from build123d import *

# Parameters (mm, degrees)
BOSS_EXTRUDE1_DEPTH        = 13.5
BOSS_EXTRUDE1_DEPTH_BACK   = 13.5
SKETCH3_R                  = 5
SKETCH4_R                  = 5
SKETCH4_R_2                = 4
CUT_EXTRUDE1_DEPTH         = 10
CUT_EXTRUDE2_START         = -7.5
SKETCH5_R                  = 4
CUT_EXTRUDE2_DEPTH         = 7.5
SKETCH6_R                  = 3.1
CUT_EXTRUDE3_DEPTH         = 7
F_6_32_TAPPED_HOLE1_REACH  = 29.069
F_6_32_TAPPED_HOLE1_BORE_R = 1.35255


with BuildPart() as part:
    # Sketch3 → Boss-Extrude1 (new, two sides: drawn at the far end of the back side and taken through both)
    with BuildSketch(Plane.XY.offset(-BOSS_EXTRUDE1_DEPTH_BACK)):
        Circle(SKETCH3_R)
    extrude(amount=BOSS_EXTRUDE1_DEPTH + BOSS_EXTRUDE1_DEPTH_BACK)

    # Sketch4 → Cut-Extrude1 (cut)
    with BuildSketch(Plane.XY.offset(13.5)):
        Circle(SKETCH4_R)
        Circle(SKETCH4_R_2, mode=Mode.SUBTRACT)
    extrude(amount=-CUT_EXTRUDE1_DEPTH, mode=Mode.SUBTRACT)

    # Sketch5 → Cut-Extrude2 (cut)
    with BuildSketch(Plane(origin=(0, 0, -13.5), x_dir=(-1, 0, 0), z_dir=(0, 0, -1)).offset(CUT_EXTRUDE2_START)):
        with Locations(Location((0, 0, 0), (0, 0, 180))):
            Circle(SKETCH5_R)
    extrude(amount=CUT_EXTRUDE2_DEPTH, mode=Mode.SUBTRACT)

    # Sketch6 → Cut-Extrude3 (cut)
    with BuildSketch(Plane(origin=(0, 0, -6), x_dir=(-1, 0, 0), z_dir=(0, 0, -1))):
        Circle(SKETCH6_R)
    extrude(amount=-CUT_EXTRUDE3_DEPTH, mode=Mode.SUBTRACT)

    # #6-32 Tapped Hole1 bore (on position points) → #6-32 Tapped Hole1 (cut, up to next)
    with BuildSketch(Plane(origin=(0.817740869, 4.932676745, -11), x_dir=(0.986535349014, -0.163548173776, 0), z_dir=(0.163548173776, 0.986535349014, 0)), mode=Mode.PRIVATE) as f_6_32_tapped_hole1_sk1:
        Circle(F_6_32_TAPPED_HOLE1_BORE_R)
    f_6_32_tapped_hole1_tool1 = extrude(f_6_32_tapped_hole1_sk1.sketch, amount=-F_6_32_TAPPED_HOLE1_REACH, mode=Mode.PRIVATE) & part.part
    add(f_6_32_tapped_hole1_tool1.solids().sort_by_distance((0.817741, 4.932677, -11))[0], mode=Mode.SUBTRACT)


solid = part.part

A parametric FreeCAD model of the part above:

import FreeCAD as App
import Part
import Sketcher

V = App.Vector
Q = App.Units.Quantity

doc = App.newDocument("Part")
body = doc.addObject("PartDesign::Body", "Body")

sketch1 = body.newObject("Sketcher::SketchObject", "Sketch")
sketch1.AttachmentSupport = (doc.getObject("XY_Plane"), [""])
sketch1.MapMode = "FlatFace"
sketch1.addGeometry(Part.Circle(V(0, 0, 0), V(0, 0, 1), 5), False)
sketch1.addConstraint([
    Sketcher.Constraint("Coincident", 0, 3, -1, 1),
    Sketcher.Constraint("Diameter", 0, Q("10 mm")),
])
pad1 = body.newObject("PartDesign::Pad", "Pad")
pad1.Profile = sketch1
pad1.Type = "TwoLengths"
pad1.Length = 13.5
pad1.Length2 = 13.5

sketch2 = body.newObject("Sketcher::SketchObject", "Sketch001")
sketch2.AttachmentSupport = (doc.getObject("XY_Plane"), [""])
sketch2.MapMode = "FlatFace"
sketch2.AttachmentOffset = App.Placement(V(0, 0, 13.5), App.Rotation())
sketch2.addGeometry([
    Part.Circle(V(0, 0, 0), V(0, 0, 1), 5),
    Part.Circle(V(0, 0, 0), V(0, 0, 1), 4),
], False)
sketch2.addConstraint([
    Sketcher.Constraint("Coincident", 0, 3, -1, 1),
    Sketcher.Constraint("Coincident", 1, 3, -1, 1),
    Sketcher.Constraint("Diameter", 0, Q("10 mm")),
    Sketcher.Constraint("Diameter", 1, Q("8 mm")),
])
pocket1 = body.newObject("PartDesign::Pocket", "Pocket")
pocket1.Profile = sketch2
pocket1.Length = 10

sketch3 = body.newObject("Sketcher::SketchObject", "Sketch002")
sketch3.AttachmentSupport = (doc.getObject("XY_Plane"), [""])
sketch3.MapMode = "FlatFace"
sketch3.AttachmentOffset = App.Placement(V(0, 0, -6), App.Rotation())
sketch3.addGeometry(Part.Circle(V(0, 0, 0), V(0, 0, 1), 4), False)
sketch3.addConstraint([
    Sketcher.Constraint("Coincident", 0, 3, -1, 1),
    Sketcher.Constraint("Diameter", 0, Q("8 mm")),
])
pocket2 = body.newObject("PartDesign::Pocket", "Pocket001")
pocket2.Profile = sketch3
pocket2.Length = 7.5

sketch4 = body.newObject("Sketcher::SketchObject", "Sketch003")
sketch4.AttachmentSupport = (doc.getObject("XY_Plane"), [""])
sketch4.MapMode = "FlatFace"
sketch4.AttachmentOffset = App.Placement(V(0, 0, -6), App.Rotation())
sketch4.addGeometry(Part.Circle(V(0, 0, 0), V(0, 0, 1), 3.1), False)
sketch4.addConstraint([
    Sketcher.Constraint("Coincident", 0, 3, -1, 1),
    Sketcher.Constraint("Diameter", 0, Q("6.2 mm")),
])
pocket3 = body.newObject("PartDesign::Pocket", "Pocket002")
pocket3.Profile = sketch4
pocket3.Length = 7
pocket3.Reversed = True

sketch5 = body.newObject("Sketcher::SketchObject", "Sketch004")
sketch5.Placement = App.Placement(V(0.817741, 4.932677, -11), App.Rotation(V(0.986535349, -0.163548174, 0), V(0, 0, -1), V(0.163548174, 0.986535349, 0), "ZXY"))
sketch5.addGeometry(Part.Circle(V(0, 0, 0), V(0, 0, 1), 1.4), False)
sketch5.addConstraint([
    Sketcher.Constraint("Coincident", 0, 3, -1, 1),
    Sketcher.Constraint("Diameter", 0, Q("2.7051 mm")),
])
pocket4 = body.newObject("PartDesign::Pocket", "Pocket003")
pocket4.Profile = sketch5
pocket4.Type = "UpToFirst"

doc.recompute()
